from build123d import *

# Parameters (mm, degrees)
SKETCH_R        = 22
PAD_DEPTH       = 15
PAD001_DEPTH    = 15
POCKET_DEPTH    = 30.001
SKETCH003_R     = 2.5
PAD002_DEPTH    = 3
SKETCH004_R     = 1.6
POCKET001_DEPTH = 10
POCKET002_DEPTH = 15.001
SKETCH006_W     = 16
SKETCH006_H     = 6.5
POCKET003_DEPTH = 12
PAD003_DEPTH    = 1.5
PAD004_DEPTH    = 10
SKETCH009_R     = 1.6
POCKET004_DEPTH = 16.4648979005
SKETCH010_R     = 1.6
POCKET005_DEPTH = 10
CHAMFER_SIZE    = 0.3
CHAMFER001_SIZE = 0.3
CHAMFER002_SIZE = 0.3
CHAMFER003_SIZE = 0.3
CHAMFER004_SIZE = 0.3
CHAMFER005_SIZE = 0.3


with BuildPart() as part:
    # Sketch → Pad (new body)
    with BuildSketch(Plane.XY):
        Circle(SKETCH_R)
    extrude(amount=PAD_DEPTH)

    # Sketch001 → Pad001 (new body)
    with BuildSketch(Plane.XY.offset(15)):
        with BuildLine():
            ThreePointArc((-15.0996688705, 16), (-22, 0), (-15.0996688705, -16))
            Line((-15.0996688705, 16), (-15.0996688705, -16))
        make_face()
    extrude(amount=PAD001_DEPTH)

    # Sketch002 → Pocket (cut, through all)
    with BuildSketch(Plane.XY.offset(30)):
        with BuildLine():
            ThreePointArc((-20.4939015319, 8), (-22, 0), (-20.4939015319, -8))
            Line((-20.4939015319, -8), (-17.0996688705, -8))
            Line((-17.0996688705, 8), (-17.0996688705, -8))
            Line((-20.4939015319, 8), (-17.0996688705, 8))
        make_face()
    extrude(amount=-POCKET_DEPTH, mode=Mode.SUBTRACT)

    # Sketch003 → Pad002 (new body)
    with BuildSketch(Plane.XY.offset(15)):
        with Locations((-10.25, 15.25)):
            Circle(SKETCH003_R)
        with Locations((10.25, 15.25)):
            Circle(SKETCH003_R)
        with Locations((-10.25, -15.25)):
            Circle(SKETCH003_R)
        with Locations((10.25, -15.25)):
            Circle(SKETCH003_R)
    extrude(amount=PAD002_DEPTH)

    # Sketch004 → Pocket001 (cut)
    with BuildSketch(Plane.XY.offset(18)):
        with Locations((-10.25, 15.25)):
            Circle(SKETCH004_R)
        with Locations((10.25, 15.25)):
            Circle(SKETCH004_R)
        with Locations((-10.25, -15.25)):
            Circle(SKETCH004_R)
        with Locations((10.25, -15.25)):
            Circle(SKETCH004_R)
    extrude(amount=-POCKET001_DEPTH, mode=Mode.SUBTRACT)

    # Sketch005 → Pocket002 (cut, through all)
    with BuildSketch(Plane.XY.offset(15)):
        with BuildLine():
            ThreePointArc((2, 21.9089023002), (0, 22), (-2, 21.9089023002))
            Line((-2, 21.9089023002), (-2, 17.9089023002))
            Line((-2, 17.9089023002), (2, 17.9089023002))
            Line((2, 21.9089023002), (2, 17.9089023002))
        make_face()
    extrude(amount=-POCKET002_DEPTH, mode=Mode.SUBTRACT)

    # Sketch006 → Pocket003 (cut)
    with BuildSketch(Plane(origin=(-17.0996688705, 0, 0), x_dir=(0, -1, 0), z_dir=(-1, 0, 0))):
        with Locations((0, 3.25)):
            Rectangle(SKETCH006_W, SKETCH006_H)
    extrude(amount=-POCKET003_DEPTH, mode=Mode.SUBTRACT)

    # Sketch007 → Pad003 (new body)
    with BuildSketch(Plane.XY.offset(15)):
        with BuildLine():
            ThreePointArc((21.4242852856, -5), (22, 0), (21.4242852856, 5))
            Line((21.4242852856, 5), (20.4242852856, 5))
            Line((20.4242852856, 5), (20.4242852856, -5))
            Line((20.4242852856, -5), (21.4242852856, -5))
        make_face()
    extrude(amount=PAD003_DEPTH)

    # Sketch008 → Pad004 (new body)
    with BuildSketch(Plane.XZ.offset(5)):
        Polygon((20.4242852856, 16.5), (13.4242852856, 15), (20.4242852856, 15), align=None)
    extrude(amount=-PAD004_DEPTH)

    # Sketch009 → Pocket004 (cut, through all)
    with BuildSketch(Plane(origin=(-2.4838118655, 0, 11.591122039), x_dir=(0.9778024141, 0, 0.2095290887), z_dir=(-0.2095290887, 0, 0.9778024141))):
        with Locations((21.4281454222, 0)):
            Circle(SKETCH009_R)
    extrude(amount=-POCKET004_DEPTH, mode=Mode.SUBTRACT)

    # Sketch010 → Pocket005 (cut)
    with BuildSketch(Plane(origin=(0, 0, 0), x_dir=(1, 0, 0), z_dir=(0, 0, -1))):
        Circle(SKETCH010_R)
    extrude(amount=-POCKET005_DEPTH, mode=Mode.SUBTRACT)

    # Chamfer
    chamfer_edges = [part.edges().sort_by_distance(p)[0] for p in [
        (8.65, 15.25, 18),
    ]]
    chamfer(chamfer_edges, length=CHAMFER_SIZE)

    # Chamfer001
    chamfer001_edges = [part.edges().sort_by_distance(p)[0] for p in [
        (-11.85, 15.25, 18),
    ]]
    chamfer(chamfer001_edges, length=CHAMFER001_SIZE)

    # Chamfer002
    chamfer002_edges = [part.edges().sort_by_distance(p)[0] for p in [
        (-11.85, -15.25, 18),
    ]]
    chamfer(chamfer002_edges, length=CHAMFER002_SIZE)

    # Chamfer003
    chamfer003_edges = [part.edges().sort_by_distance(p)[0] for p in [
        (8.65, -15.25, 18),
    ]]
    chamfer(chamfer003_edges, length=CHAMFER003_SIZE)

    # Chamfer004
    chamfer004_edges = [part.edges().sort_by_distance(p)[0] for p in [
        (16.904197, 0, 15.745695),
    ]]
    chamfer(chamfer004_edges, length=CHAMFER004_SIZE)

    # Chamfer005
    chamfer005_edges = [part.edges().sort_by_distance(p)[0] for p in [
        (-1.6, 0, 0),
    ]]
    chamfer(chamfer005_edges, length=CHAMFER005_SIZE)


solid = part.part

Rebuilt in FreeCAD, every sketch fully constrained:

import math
import FreeCAD as App
import Part
import Sketcher
Q = App.Units.Quantity


def edges_at(feature, points):
    """Names of the edges that pass closest to the given points."""
    edges = feature.Shape.Edges
    near = lambda p: min(range(len(edges)), key=lambda i: edges[i].distToShape(Part.Vertex(*p))[0])
    return sorted({f"Edge{near(p) + 1}" for p in points})


def add_polygon(sketch, points):
    """Adds a closed chain of lines whose ends are joined by coincident constraints."""
    first, n = sketch.GeometryCount, len(points)
    for a, b in zip(points, points[1:] + points[:1]):
        sketch.addGeometry(Part.LineSegment(App.Vector(*a, 0), App.Vector(*b, 0)), False)
    for i in range(n):
        sketch.addConstraint(Sketcher.Constraint("Coincident", first + i, 2, first + (i + 1) % n, 1))

doc = App.newDocument("Part")
body = doc.addObject("PartDesign::Body", "Body")

# Sketch on XY plane
sketch1 = body.newObject("Sketcher::SketchObject", "Sketch")
sketch1.AttachmentSupport = (doc.getObject("XY_Plane"), [""])
sketch1.MapMode = "FlatFace"
sketch1.addGeometry(Part.Circle(App.Vector(0, 0, 0), App.Vector(0, 0, 1), 22), False)
sketch1.addConstraint([
    Sketcher.Constraint("Coincident", 0, 3, -1, 1),
    Sketcher.Constraint("Diameter", 0, Q("44 mm")),
])
pad1 = body.newObject("PartDesign::Pad", "Pad")
pad1.Profile = sketch1
pad1.Length = 15

# Sketch on XY plane
sketch2 = body.newObject("Sketcher::SketchObject", "Sketch001")
sketch2.AttachmentSupport = (doc.getObject("XY_Plane"), [""])
sketch2.MapMode = "FlatFace"
sketch2.AttachmentOffset = App.Placement(App.Vector(0, 0, 15), App.Rotation())
sketch2.addGeometry([
    Part.ArcOfCircle(Part.Circle(App.Vector(0, 0, 0), App.Vector(0, 0, 1), 22), math.radians(133), math.radians(227)),
    Part.LineSegment(App.Vector(-15, -16, 0), App.Vector(-15, 16, 0)),
], False)
sketch2.addConstraint([
    Sketcher.Constraint("Coincident", 0, 1, 1, 2),
    Sketcher.Constraint("Coincident", 1, 1, 0, 2),
    Sketcher.Constraint("Vertical", 1),
    Sketcher.Constraint("Coincident", 0, 3, -1, 1),
    Sketcher.Constraint("Radius", 0, Q("22 mm")),
    Sketcher.Constraint("DistanceY", 1, 1, 1, 2, Q("32 mm")),
])
pad2 = body.newObject("PartDesign::Pad", "Pad001")
pad2.Profile = sketch2
pad2.Length = 15

# Sketch on XY plane
sketch3 = body.newObject("Sketcher::SketchObject", "Sketch002")
sketch3.AttachmentSupport = (doc.getObject("XY_Plane"), [""])
sketch3.MapMode = "FlatFace"
sketch3.AttachmentOffset = App.Placement(App.Vector(0, 0, 30), App.Rotation())
sketch3.addGeometry([
    Part.ArcOfCircle(Part.Circle(App.Vector(0, 0, 0), App.Vector(0, 0, 1), 22), math.radians(159), math.radians(201)),
    Part.LineSegment(App.Vector(-20.5, -8, 0), App.Vector(-17.1, -8, 0)),
    Part.LineSegment(App.Vector(-17.1, -8, 0), App.Vector(-17.1, 8, 0)),
    Part.LineSegment(App.Vector(-17.1, 8, 0), App.Vector(-20.5, 8, 0)),
], False)
sketch3.addConstraint([
    Sketcher.Constraint("Coincident", 0, 2, 1, 1),
    Sketcher.Constraint("Coincident", 1, 2, 2, 1),
    Sketcher.Constraint("Coincident", 2, 2, 3, 1),
    Sketcher.Constraint("Coincident", 3, 2, 0, 1),
    Sketcher.Constraint("Horizontal", 1),
    Sketcher.Constraint("Vertical", 2),
    Sketcher.Constraint("Horizontal", 3),
    Sketcher.Constraint("Coincident", 0, 3, -1, 1),
    Sketcher.Constraint("Vertical", 0, 2, 3, 2),
    Sketcher.Constraint("Radius", 0, Q("22 mm")),
    Sketcher.Constraint("DistanceY", 2, 1, 2, 2, Q("16 mm")),
    Sketcher.Constraint("DistanceX", 1, 1, 1, 2, Q("3.394233 mm")),
])
pocket1 = body.newObject("PartDesign::Pocket", "Pocket")
pocket1.Profile = sketch3
pocket1.Type = "ThroughAll"

# Sketch on XY plane
sketch4 = body.newObject("Sketcher::SketchObject", "Sketch003")
sketch4.AttachmentSupport = (doc.getObject("XY_Plane"), [""])
sketch4.MapMode = "FlatFace"
sketch4.AttachmentOffset = App.Placement(App.Vector(0, 0, 15), App.Rotation())
sketch4.addGeometry([
    Part.Circle(App.Vector(-10.2, 15.2, 0), App.Vector(0, 0, 1), 2.5),
    Part.Circle(App.Vector(10.2, 15.2, 0), App.Vector(0, 0, 1), 2.5),
    Part.Circle(App.Vector(-10.2, -15.2, 0), App.Vector(0, 0, 1), 2.5),
    Part.Circle(App.Vector(10.2, -15.2, 0), App.Vector(0, 0, 1), 2.5),
], False)
sketch4.addConstraint([
    Sketcher.Constraint("Equal", 0, 1),
    Sketcher.Constraint("Equal", 1, 2),
    Sketcher.Constraint("Equal", 2, 3),
    Sketcher.Constraint("Symmetric", 1, 3, 2, 3, -1, 1),
    Sketcher.Constraint("Symmetric", 0, 3, 3, 3, -1, 1),
    Sketcher.Constraint("Symmetric", 0, 3, 1, 3, -2),
    Sketcher.Constraint("Diameter", 0, Q("5 mm")),
    Sketcher.Constraint("DistanceX", 0, 3, 1, 3, Q("20.5 mm")),
    Sketcher.Constraint("DistanceY", 2, 3, 0, 3, Q("30.5 mm")),
])
pad3 = body.newObject("PartDesign::Pad", "Pad002")
pad3.Profile = sketch4
pad3.Length = 3

# Sketch on XY plane
sketch5 = body.newObject("Sketcher::SketchObject", "Sketch004")
sketch5.AttachmentSupport = (doc.getObject("XY_Plane"), [""])
sketch5.MapMode = "FlatFace"
sketch5.AttachmentOffset = App.Placement(App.Vector(0, 0, 18), App.Rotation())
sketch5.addGeometry([
    Part.Circle(App.Vector(-10.2, 15.2, 0), App.Vector(0, 0, 1), 1.6),
    Part.Circle(App.Vector(10.2, 15.2, 0), App.Vector(0, 0, 1), 1.6),
    Part.Circle(App.Vector(-10.2, -15.2, 0), App.Vector(0, 0, 1), 1.6),
    Part.Circle(App.Vector(10.2, -15.2, 0), App.Vector(0, 0, 1), 1.6),
], False)
sketch5.addConstraint([
    Sketcher.Constraint("Equal", 0, 1),
    Sketcher.Constraint("Equal", 1, 2),
    Sketcher.Constraint("Equal", 2, 3),
    Sketcher.Constraint("Symmetric", 1, 3, 2, 3, -1, 1),
    Sketcher.Constraint("Symmetric", 0, 3, 3, 3, -1, 1),
    Sketcher.Constraint("Symmetric", 0, 3, 1, 3, -2),
    Sketcher.Constraint("Diameter", 0, Q("3.2 mm")),
    Sketcher.Constraint("DistanceX", 0, 3, 1, 3, Q("20.5 mm")),
    Sketcher.Constraint("DistanceY", 2, 3, 0, 3, Q("30.5 mm")),
])
pocket2 = body.newObject("PartDesign::Pocket", "Pocket001")
pocket2.Profile = sketch5
pocket2.Length = 10

# Sketch on XY plane
sketch6 = body.newObject("Sketcher::SketchObject", "Sketch005")
sketch6.AttachmentSupport = (doc.getObject("XY_Plane"), [""])
sketch6.MapMode = "FlatFace"
sketch6.AttachmentOffset = App.Placement(App.Vector(0, 0, 15), App.Rotation())
sketch6.addGeometry([
    Part.ArcOfCircle(Part.Circle(App.Vector(0, 0, 0), App.Vector(0, 0, 1), 22), math.radians(84.78), math.radians(95.22)),
    Part.LineSegment(App.Vector(-2, 21.9, 0), App.Vector(-2, 17.9, 0)),
    Part.LineSegment(App.Vector(-2, 17.9, 0), App.Vector(2, 17.9, 0)),
    Part.LineSegment(App.Vector(2, 17.9, 0), App.Vector(2, 21.9, 0)),
], False)
sketch6.addConstraint([
    Sketcher.Constraint("Coincident", 0, 2, 1, 1),
    Sketcher.Constraint("Coincident", 1, 2, 2, 1),
    Sketcher.Constraint("Coincident", 2, 2, 3, 1),
    Sketcher.Constraint("Coincident", 3, 2, 0, 1),
    Sketcher.Constraint("Vertical", 1),
    Sketcher.Constraint("Horizontal", 2),
    Sketcher.Constraint("Vertical", 3),
    Sketcher.Constraint("Coincident", 0, 3, -1, 1),
    Sketcher.Constraint("Horizontal", 0, 2, 3, 2),
    Sketcher.Constraint("Equal", 2, 1),
    Sketcher.Constraint("Radius", 0, Q("22 mm")),
    Sketcher.Constraint("DistanceX", 2, 1, 2, 2, Q("4 mm")),
])
pocket3 = body.newObject("PartDesign::Pocket", "Pocket002")
pocket3.Profile = sketch6
pocket3.Type = "ThroughAll"

# Sketch on YZ plane
sketch7 = body.newObject("Sketcher::SketchObject", "Sketch006")
sketch7.AttachmentSupport = (doc.getObject("YZ_Plane"), [""])
sketch7.MapMode = "FlatFace"
sketch7.AttachmentOffset = App.Placement(App.Vector(0, 0, -17.099669), App.Rotation())
add_polygon(sketch7, [(8, 6), (8, 0), (-8, 0), (-8, 6)])  # lines 0-3
sketch7.addConstraint([
    Sketcher.Constraint("Vertical", 0),
    Sketcher.Constraint("Horizontal", 1),
    Sketcher.Constraint("Vertical", 2),
    Sketcher.Constraint("Horizontal", 3),
    Sketcher.Constraint("Symmetric", 0, 2, 1, 2, -1, 1),
    Sketcher.Constraint("DistanceX", 1, 2, 1, 1, Q("16 mm")),
    Sketcher.Constraint("DistanceY", 0, 2, 0, 1, Q("6.5 mm")),
])
pocket4 = body.newObject("PartDesign::Pocket", "Pocket003")
pocket4.Profile = sketch7
pocket4.Length = 12
pocket4.Reversed = True

# Sketch on XY plane
sketch8 = body.newObject("Sketcher::SketchObject", "Sketch007")
sketch8.AttachmentSupport = (doc.getObject("XY_Plane"), [""])
sketch8.MapMode = "FlatFace"
sketch8.AttachmentOffset = App.Placement(App.Vector(0, 0, 15), App.Rotation())
sketch8.addGeometry([
    Part.ArcOfCircle(Part.Circle(App.Vector(0, 0, 0), App.Vector(0, 0, 1), 22), math.radians(-13), math.radians(13)),
    Part.LineSegment(App.Vector(21.4, 5, 0), App.Vector(20.4, 5, 0)),
    Part.LineSegment(App.Vector(20.4, 5, 0), App.Vector(20.4, -5, 0)),
    Part.LineSegment(App.Vector(20.4, -5, 0), App.Vector(21.4, -5, 0)),
], False)
sketch8.addConstraint([
    Sketcher.Constraint("Coincident", 0, 2, 1, 1),
    Sketcher.Constraint("Coincident", 1, 2, 2, 1),
    Sketcher.Constraint("Coincident", 2, 2, 3, 1),
    Sketcher.Constraint("Coincident", 3, 2, 0, 1),
    Sketcher.Constraint("Horizontal", 1),
    Sketcher.Constraint("Vertical", 2),
    Sketcher.Constraint("Horizontal", 3),
    Sketcher.Constraint("Coincident", 0, 3, -1, 1),
    Sketcher.Constraint("Vertical", 0, 2, 3, 2),
    Sketcher.Constraint("Radius", 0, Q("22 mm")),
    Sketcher.Constraint("DistanceX", 1, 2, 1, 1, Q("1 mm")),
    Sketcher.Constraint("DistanceY", 2, 2, 2, 1, Q("10 mm")),
])
pad4 = body.newObject("PartDesign::Pad", "Pad003")
pad4.Profile = sketch8
pad4.Length = 1.5

# Sketch on XZ plane
sketch9 = body.newObject("Sketcher::SketchObject", "Sketch008")
sketch9.AttachmentSupport = (doc.getObject("XZ_Plane"), [""])
sketch9.MapMode = "FlatFace"
sketch9.AttachmentOffset = App.Placement(App.Vector(0, 0, 5), App.Rotation())
add_polygon(sketch9, [(20.4, 16.5), (13.4, 15), (20.4, 15)])  # lines 0-2
sketch9.addConstraint([
    Sketcher.Constraint("Horizontal", 1),
    Sketcher.Constraint("Vertical", 2),
    Sketcher.Constraint("DistanceX", 1, 1, 1, 2, Q("7 mm")),
    Sketcher.Constraint("DistanceY", 2, 1, 2, 2, Q("1.5 mm")),
    Sketcher.Constraint("DistanceY", -1, 1, 0, 2, Q("15 mm")),
    Sketcher.Constraint("DistanceX", -1, 1, 0, 2, Q("13.424285 mm")),
])
pad5 = body.newObject("PartDesign::Pad", "Pad004")
pad5.Profile = sketch9
pad5.Length = 10
pad5.Reversed = True

# Sketch on an angled plane
sketch10 = body.newObject("Sketcher::SketchObject", "Sketch009")
sketch10.Placement = App.Placement(App.Vector(-2.483812, 0, 11.591122), App.Rotation(App.Vector(0.977802414, 0, 0.209529089), App.Vector(0, 1, 0), App.Vector(-0.209529089, 0, 0.977802414), "ZXY"))
sketch10.addGeometry(Part.Circle(App.Vector(21.4, 0, 0), App.Vector(0, 0, 1), 1.6), False)
sketch10.addConstraint([
    Sketcher.Constraint("PointOnObject", 0, 3, -1),
    Sketcher.Constraint("Diameter", 0, Q("3.2 mm")),
    Sketcher.Constraint("DistanceX", -1, 1, 0, 3, Q("21.428145 mm")),
])
pocket5 = body.newObject("PartDesign::Pocket", "Pocket004")
pocket5.Profile = sketch10
pocket5.Type = "ThroughAll"

# Sketch on XY plane
sketch11 = body.newObject("Sketcher::SketchObject", "Sketch010")
sketch11.AttachmentSupport = (doc.getObject("XY_Plane"), [""])
sketch11.MapMode = "FlatFace"
sketch11.addGeometry(Part.Circle(App.Vector(0, 0, 0), App.Vector(0, 0, 1), 1.6), False)
sketch11.addConstraint([
    Sketcher.Constraint("Coincident", 0, 3, -1, 1),
    Sketcher.Constraint("Diameter", 0, Q("3.2 mm")),
])
pocket6 = body.newObject("PartDesign::Pocket", "Pocket005")
pocket6.Profile = sketch11
pocket6.Length = 10
pocket6.Reversed = True
doc.recompute()

chamfer = body.newObject("PartDesign::Chamfer", "Chamfer")
chamfer.Base = (pocket6, edges_at(pocket6, [(8.65, 15.25, 18)]))
chamfer.Size = 0.3
doc.recompute()

chamfer2 = body.newObject("PartDesign::Chamfer", "Chamfer001")
chamfer2.Base = (chamfer, edges_at(chamfer, [(-11.85, 15.25, 18)]))
chamfer2.Size = 0.3
doc.recompute()

chamfer3 = body.newObject("PartDesign::Chamfer", "Chamfer002")
chamfer3.Base = (chamfer2, edges_at(chamfer2, [(-11.85, -15.25, 18)]))
chamfer3.Size = 0.3
doc.recompute()

chamfer4 = body.newObject("PartDesign::Chamfer", "Chamfer003")
chamfer4.Base = (chamfer3, edges_at(chamfer3, [(8.65, -15.25, 18)]))
chamfer4.Size = 0.3
doc.recompute()

chamfer5 = body.newObject("PartDesign::Chamfer", "Chamfer004")
chamfer5.Base = (chamfer4, edges_at(chamfer4, [(16.904, 0, 15.746)]))
chamfer5.Size = 0.3
doc.recompute()

chamfer6 = body.newObject("PartDesign::Chamfer", "Chamfer005")
chamfer6.Base = (chamfer5, edges_at(chamfer5, [(-1.6, 0, 0)]))
chamfer6.Size = 0.3

doc.recompute()
